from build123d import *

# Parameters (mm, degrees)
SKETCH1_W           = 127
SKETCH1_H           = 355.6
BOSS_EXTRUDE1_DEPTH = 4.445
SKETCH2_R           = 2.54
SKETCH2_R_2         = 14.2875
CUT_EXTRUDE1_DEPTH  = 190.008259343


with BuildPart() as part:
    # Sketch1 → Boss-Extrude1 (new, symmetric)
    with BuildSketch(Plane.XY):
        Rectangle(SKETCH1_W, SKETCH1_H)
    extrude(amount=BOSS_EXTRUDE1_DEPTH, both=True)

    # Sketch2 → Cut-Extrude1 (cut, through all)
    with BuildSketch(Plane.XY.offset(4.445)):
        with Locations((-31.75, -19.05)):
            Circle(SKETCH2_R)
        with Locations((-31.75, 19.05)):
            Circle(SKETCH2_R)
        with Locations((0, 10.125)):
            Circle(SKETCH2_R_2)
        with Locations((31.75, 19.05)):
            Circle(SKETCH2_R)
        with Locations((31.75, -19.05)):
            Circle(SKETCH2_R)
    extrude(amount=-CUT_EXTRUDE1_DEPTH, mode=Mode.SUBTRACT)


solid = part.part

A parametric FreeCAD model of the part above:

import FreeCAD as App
import Part
import Sketcher

V = App.Vector
Q = App.Units.Quantity


def add_polygon(sketch, points):
    """Adds a closed chain of lines whose ends are joined by coincident constraints."""
    first, n = sketch.GeometryCount, len(points)
    for a, b in zip(points, points[1:] + points[:1]):
        sketch.addGeometry(Part.LineSegment(App.Vector(*a, 0), App.Vector(*b, 0)), False)
    for i in range(n):
        sketch.addConstraint(Sketcher.Constraint("Coincident", first + i, 2, first + (i + 1) % n, 1))

doc = App.newDocument("Part")
body = doc.addObject("PartDesign::Body", "Body")

sketch1 = doc.addObject("Sketcher::SketchObject", "Sketch")
body.addObject(sketch1)
sketch1.AttachmentSupport = (doc.XY_Plane, [""])
sketch1.MapMode = "FlatFace"
add_polygon(sketch1, [(-64, 178), (-64, -178), (64, -178), (64, 178)])
sketch1.addConstraint([
    Sketcher.Constraint("Vertical", 0),
    Sketcher.Constraint("Horizontal", 1),
    Sketcher.Constraint("Vertical", 2),
    Sketcher.Constraint("Horizontal", 3),
    Sketcher.Constraint("Symmetric", 0, 2, 2, 2, -1, 1),
    Sketcher.Constraint("DistanceX", 1, 1, 1, 2, Q("5 in")),
    Sketcher.Constraint("DistanceY", 0, 2, 0, 1, Q("14 in")),
])
pad1 = doc.addObject("PartDesign::Pad", "Pad")
body.addObject(pad1)
pad1.Profile = sketch1
pad1.Length = Q("0.35 in")
pad1.Midplane = True

sketch2 = doc.addObject("Sketcher::SketchObject", "Sketch001")
body.addObject(sketch2)
sketch2.AttachmentSupport = (doc.XY_Plane, [""])
sketch2.MapMode = "FlatFace"
sketch2.AttachmentOffset = App.Placement(V(0, 0, 0.175 * 25.4), App.Rotation())
sketch2.addGeometry([
    Part.Circle(V(-31.8, -19.1, 0), V(0, 0, 1), 2.5),
    Part.Circle(V(-31.8, 19.1, 0), V(0, 0, 1), 2.5),
    Part.Circle(V(0, 10.1, 0), V(0, 0, 1), 14.3),
    Part.Circle(V(31.8, 19.1, 0), V(0, 0, 1), 2.5),
    Part.Circle(V(31.8, -19.1, 0), V(0, 0, 1), 2.5),
], False)
sketch2.addConstraint([
    Sketcher.Constraint("Equal", 0, 1),
    Sketcher.Constraint("Equal", 1, 3),
    Sketcher.Constraint("Equal", 3, 4),
    Sketcher.Constraint("Symmetric", 0, 3, 3, 3, -1, 1),
    Sketcher.Constraint("Symmetric", 1, 3, 4, 3, -1, 1),
    Sketcher.Constraint("Symmetric", 1, 3, 3, 3, -2),
    Sketcher.Constraint("PointOnObject", 2, 3, -2),
    Sketcher.Constraint("Diameter", 0, Q("0.2 in")),
    Sketcher.Constraint("Diameter", 2, Q("1.125 in")),
    Sketcher.Constraint("DistanceY", 0, 3, 1, 3, Q("1.5 in")),
    Sketcher.Constraint("DistanceX", 1, 3, 3, 3, Q("2.5 in")),
    Sketcher.Constraint("DistanceY", -1, 1, 2, 3, Q("10.125 mm")),
])
pocket1 = doc.addObject("PartDesign::Pocket", "Pocket")
body.addObject(pocket1)
pocket1.Profile = sketch2
pocket1.Type = "ThroughAll"

doc.recompute()
